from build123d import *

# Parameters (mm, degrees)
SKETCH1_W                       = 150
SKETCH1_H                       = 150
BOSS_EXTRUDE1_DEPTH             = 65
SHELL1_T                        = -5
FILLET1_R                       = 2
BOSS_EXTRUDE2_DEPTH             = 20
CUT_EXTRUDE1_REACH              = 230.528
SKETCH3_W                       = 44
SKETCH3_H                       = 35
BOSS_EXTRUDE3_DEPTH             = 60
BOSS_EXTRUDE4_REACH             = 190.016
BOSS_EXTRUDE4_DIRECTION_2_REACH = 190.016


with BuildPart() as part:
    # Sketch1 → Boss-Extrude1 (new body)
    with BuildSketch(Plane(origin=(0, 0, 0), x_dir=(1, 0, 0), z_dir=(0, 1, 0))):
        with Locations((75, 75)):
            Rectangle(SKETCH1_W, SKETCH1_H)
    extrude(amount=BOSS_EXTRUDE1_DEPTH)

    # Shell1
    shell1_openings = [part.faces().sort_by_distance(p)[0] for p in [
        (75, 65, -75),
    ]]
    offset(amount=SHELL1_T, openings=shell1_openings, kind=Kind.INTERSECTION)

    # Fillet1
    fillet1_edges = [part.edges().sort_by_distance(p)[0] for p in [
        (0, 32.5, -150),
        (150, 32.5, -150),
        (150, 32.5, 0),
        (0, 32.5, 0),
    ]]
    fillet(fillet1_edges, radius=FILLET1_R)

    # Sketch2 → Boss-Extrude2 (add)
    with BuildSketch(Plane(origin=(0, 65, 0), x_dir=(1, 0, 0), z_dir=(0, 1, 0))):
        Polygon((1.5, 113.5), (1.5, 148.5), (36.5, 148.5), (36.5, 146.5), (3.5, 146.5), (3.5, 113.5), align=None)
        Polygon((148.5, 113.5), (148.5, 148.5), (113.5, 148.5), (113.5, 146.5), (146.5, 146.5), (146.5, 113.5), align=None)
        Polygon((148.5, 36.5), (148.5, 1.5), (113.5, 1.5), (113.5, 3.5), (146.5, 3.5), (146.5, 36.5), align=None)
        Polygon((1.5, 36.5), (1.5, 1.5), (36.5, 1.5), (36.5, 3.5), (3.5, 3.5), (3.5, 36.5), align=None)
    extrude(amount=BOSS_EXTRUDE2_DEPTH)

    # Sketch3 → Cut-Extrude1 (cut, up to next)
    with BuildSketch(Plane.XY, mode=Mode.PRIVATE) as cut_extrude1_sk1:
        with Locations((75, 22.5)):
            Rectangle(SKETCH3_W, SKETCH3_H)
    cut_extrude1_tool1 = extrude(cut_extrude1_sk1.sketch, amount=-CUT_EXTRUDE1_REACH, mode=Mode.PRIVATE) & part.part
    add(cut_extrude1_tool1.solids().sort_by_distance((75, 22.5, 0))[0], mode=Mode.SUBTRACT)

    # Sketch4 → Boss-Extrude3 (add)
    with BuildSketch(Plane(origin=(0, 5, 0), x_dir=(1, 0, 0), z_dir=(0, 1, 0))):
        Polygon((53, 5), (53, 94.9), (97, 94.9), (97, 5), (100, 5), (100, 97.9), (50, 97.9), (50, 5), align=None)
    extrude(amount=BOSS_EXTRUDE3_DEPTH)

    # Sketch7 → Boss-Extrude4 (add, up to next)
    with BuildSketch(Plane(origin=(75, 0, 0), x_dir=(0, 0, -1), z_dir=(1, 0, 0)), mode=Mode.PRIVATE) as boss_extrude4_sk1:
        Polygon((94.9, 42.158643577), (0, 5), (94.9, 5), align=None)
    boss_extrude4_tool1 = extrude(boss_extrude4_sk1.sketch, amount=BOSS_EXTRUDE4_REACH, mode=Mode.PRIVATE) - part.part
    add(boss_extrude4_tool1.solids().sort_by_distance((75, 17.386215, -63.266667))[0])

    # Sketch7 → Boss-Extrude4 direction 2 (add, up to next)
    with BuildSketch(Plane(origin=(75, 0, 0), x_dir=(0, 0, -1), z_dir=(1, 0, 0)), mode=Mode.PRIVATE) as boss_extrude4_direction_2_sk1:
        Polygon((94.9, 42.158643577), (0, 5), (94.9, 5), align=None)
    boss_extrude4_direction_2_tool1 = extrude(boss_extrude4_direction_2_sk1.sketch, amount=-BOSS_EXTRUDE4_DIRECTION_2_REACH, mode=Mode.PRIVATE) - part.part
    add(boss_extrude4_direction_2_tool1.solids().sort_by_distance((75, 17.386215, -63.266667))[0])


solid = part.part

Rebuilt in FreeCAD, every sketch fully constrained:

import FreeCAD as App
import Part
import Sketcher


def edges_at(feature, points):
    """Names of the edges that pass closest to the given points."""
    edges = feature.Shape.Edges
    near = lambda p: min(range(len(edges)), key=lambda i: edges[i].distToShape(Part.Vertex(*p))[0])
    return sorted({f"Edge{near(p) + 1}" for p in points})


def faces_at(feature, points):
    """Names of the faces that lie closest to the given points."""
    faces = feature.Shape.Faces
    near = lambda p: min(range(len(faces)), key=lambda i: faces[i].distToShape(Part.Vertex(*p))[0])
    return sorted({f"Face{near(p) + 1}" for p in points})


def add_polygon(sketch, points):
    """Adds a closed chain of lines whose ends are joined by coincident constraints."""
    first, n = sketch.GeometryCount, len(points)
    for a, b in zip(points, points[1:] + points[:1]):
        sketch.addGeometry(Part.LineSegment(App.Vector(*a, 0), App.Vector(*b, 0)), False)
    for i in range(n):
        sketch.addConstraint(Sketcher.Constraint("Coincident", first + i, 2, first + (i + 1) % n, 1))

doc = App.newDocument("Part")
body = doc.addObject("PartDesign::Body", "Body")

sketch1 = body.newObject("Sketcher::SketchObject", "Sketch")
sketch1.AttachmentSupport = (doc.getObject("XZ_Plane"), [""])
sketch1.MapMode = "FlatFace"
add_polygon(sketch1, [(0, -150), (0, 0), (150, 0), (150, -150)])
sketch1.addConstraint([
    Sketcher.Constraint("Vertical", 0),
    Sketcher.Constraint("Horizontal", 1),
    Sketcher.Constraint("Vertical", 2),
    Sketcher.Constraint("Horizontal", 3),
    Sketcher.Constraint("Coincident", 0, 2, -1, 1),
    Sketcher.Constraint("Equal", 3, 0),
    Sketcher.Constraint("DistanceX", 1, 1, 1, 2, 150.0),
])
pad1 = body.newObject("PartDesign::Pad", "Pad")
pad1.Profile = sketch1
pad1.Length = 65
pad1.Reversed = True
doc.recompute()

thickness = body.newObject("PartDesign::Thickness", "Thickness")
thickness.Base = (pad1, faces_at(pad1, [(75, 65, -75)]))
thickness.Value = 5
thickness.Reversed = True
thickness.Join = "Intersection"
doc.recompute()

fillet = body.newObject("PartDesign::Fillet", "Fillet")
fillet.Base = (thickness, edges_at(thickness, [
    (0, 32.5, -150),
    (150, 32.5, -150),
    (150, 32.5, 0),
    (0, 32.5, 0),
]))
fillet.Radius = 2

sketch2 = body.newObject("Sketcher::SketchObject", "Sketch001")
sketch2.AttachmentSupport = (doc.getObject("XZ_Plane"), [""])
sketch2.MapMode = "FlatFace"
sketch2.AttachmentOffset = App.Placement(App.Vector(0, 0, -65), App.Rotation())
add_polygon(sketch2, [(1.5, -148.5), (1.5, -113.5), (3.5, -113.5), (3.5, -146.5), (36.5, -146.5), (36.5, -148.5)])
add_polygon(sketch2, [(148.5, -113.5), (148.5, -148.5), (113.5, -148.5), (113.5, -146.5), (146.5, -146.5), (146.5, -113.5)])
add_polygon(sketch2, [(148.5, -1.5), (148.5, -36.5), (146.5, -36.5), (146.5, -3.5), (113.5, -3.5), (113.5, -1.5)])
add_polygon(sketch2, [(1.5, -36.5), (1.5, -1.5), (36.5, -1.5), (36.5, -3.5), (3.5, -3.5), (3.5, -36.5)])
sketch2.addConstraint([
    Sketcher.Constraint("Vertical", 0),
    Sketcher.Constraint("Horizontal", 1),
    Sketcher.Constraint("Vertical", 2),
    Sketcher.Constraint("Horizontal", 3),
    Sketcher.Constraint("Vertical", 4),
    Sketcher.Constraint("Horizontal", 5),
    Sketcher.Constraint("Vertical", 6),
    Sketcher.Constraint("Horizontal", 7),
    Sketcher.Constraint("Vertical", 8),
    Sketcher.Constraint("Horizontal", 9),
    Sketcher.Constraint("Vertical", 10),
    Sketcher.Constraint("Horizontal", 11),
    Sketcher.Constraint("Vertical", 12),
    Sketcher.Constraint("Horizontal", 13),
    Sketcher.Constraint("Vertical", 14),
    Sketcher.Constraint("Horizontal", 15),
    Sketcher.Constraint("Vertical", 16),
    Sketcher.Constraint("Horizontal", 17),
    Sketcher.Constraint("Vertical", 18),
    Sketcher.Constraint("Horizontal", 19),
    Sketcher.Constraint("Vertical", 20),
    Sketcher.Constraint("Horizontal", 21),
    Sketcher.Constraint("Vertical", 22),
    Sketcher.Constraint("Horizontal", 23),
    Sketcher.Constraint("Horizontal", 5, 2, 6, 2),
    Sketcher.Constraint("Horizontal", 3, 2, 8, 2),
    Sketcher.Constraint("Horizontal", 1, 2, 10, 2),
    Sketcher.Constraint("Horizontal", 17, 2, 18, 2),
    Sketcher.Constraint("Horizontal", 15, 2, 20, 2),
    Sketcher.Constraint("Horizontal", 13, 2, 22, 2),
    Sketcher.Constraint("Vertical", 11, 2, 12, 2),
    Sketcher.Constraint("Vertical", 10, 2, 13, 2),
    Sketcher.Constraint("Vertical", 8, 2, 15, 2),
    Sketcher.Constraint("Vertical", 5, 2, 18, 2),
    Sketcher.Constraint("Vertical", 4, 2, 19, 2),
    Sketcher.Constraint("Vertical", 2, 2, 21, 2),
    Sketcher.Constraint("Equal", 5, 7),
    Sketcher.Constraint("Equal", 3, 9),
    Sketcher.Constraint("Equal", 19, 0),
    Sketcher.Constraint("Equal", 21, 2),
    Sketcher.Constraint("Equal", 6, 12),
    Sketcher.Constraint("Equal", 10, 14),
    Sketcher.Constraint("DistanceX", 1, 1, 1, 2, 2.0),
    Sketcher.Constraint("DistanceX", 3, 1, 3, 2, 33.0),
    Sketcher.Constraint("DistanceX", 4, 2, 6, 2, 112.0),
    Sketcher.Constraint("DistanceY", 11, 2, 12, 2, 77.0),
    Sketcher.Constraint("DistanceX", -1, 1, 0, 2, 1.5),
    Sketcher.Constraint("DistanceY", 0, 2, -1, 1, 113.5),
])
pad2 = body.newObject("PartDesign::Pad", "Pad001")
pad2.Profile = sketch2
pad2.Length = 20
pad2.Reversed = True

sketch3 = body.newObject("Sketcher::SketchObject", "Sketch002")
sketch3.AttachmentSupport = (doc.getObject("XY_Plane"), [""])
sketch3.MapMode = "FlatFace"
add_polygon(sketch3, [(53, 40), (53, 5), (97, 5), (97, 40)])
sketch3.addConstraint([
    Sketcher.Constraint("Vertical", 0),
    Sketcher.Constraint("Horizontal", 1),
    Sketcher.Constraint("Vertical", 2),
    Sketcher.Constraint("Horizontal", 3),
    Sketcher.Constraint("DistanceX", 1, 1, 1, 2, 44.0),
    Sketcher.Constraint("DistanceY", 0, 2, 0, 1, 35.0),
    Sketcher.Constraint("DistanceX", -1, 1, 0, 2, 53.0),
    Sketcher.Constraint("DistanceY", -1, 1, 0, 2, 5.0),
])
pocket1 = body.newObject("PartDesign::Pocket", "Pocket")
pocket1.Profile = sketch3
pocket1.Type = "UpToFirst"

sketch4 = body.newObject("Sketcher::SketchObject", "Sketch003")
sketch4.AttachmentSupport = (doc.getObject("XZ_Plane"), [""])
sketch4.MapMode = "FlatFace"
sketch4.AttachmentOffset = App.Placement(App.Vector(0, 0, -5), App.Rotation())
add_polygon(sketch4, [(53, -5), (53, -94.9), (97, -94.9), (97, -5), (100, -5), (100, -97.9), (50, -97.9), (50, -5)])
sketch4.addConstraint([
    Sketcher.Constraint("Vertical", 0),
    Sketcher.Constraint("Horizontal", 1),
    Sketcher.Constraint("Vertical", 2),
    Sketcher.Constraint("Horizontal", 3),
    Sketcher.Constraint("Vertical", 4),
    Sketcher.Constraint("Horizontal", 5),
    Sketcher.Constraint("Vertical", 6),
    Sketcher.Constraint("Horizontal", 7),
    Sketcher.Constraint("Horizontal", 3, 2, 6, 2),
    Sketcher.Constraint("Equal", 3, 7),
    Sketcher.Constraint("DistanceX", 1, 1, 1, 2, 44.0),
    Sketcher.Constraint("DistanceX", 3, 1, 3, 2, 3.0),
    Sketcher.Constraint("DistanceY", 0, 2, 0, 1, 89.9),
    Sketcher.Constraint("DistanceY", 4, 2, 4, 1, 92.9),
    Sketcher.Constraint("DistanceX", -1, 1, 0, 2, 53.0),
    Sketcher.Constraint("DistanceY", 2, 2, -1, 1, 5.0),
])
pad3 = body.newObject("PartDesign::Pad", "Pad002")
pad3.Profile = sketch4
pad3.Length = 60
pad3.Reversed = True

sketch5 = body.newObject("Sketcher::SketchObject", "Sketch004")
sketch5.AttachmentSupport = (doc.getObject("YZ_Plane"), [""])
sketch5.MapMode = "FlatFace"
sketch5.AttachmentOffset = App.Placement(App.Vector(0, 0, 75), App.Rotation())
add_polygon(sketch5, [(42, -95), (5, 0), (5, -95)])
sketch5.addConstraint([
    Sketcher.Constraint("Vertical", 1),
    Sketcher.Constraint("Horizontal", 2),
    Sketcher.Constraint("PointOnObject", 0, 2, -1),
    Sketcher.Constraint("DistanceY", 1, 2, 1, 1, 94.9),
    Sketcher.Constraint("DistanceX", -1, 1, 0, 2, 5.0),
    Sketcher.Constraint("DistanceX", 2, 1, 2, 2, 37.158644),
])
pad4 = body.newObject("PartDesign::Pad", "Pad003")
pad4.Profile = sketch5
pad4.Type = "UpToFirst"

sketch6 = body.newObject("Sketcher::SketchObject", "Sketch005")
sketch6.AttachmentSupport = (doc.getObject("YZ_Plane"), [""])
sketch6.MapMode = "FlatFace"
sketch6.AttachmentOffset = App.Placement(App.Vector(0, 0, 75), App.Rotation())
add_polygon(sketch6, [(42, -95), (5, 0), (5, -95)])
sketch6.addConstraint([
    Sketcher.Constraint("Vertical", 1),
    Sketcher.Constraint("Horizontal", 2),
    Sketcher.Constraint("PointOnObject", 0, 2, -1),
    Sketcher.Constraint("DistanceY", 1, 2, 1, 1, 94.9),
    Sketcher.Constraint("DistanceX", -1, 1, 0, 2, 5.0),
    Sketcher.Constraint("DistanceX", 2, 1, 2, 2, 37.158644),
])
pad5 = body.newObject("PartDesign::Pad", "Pad004")
pad5.Profile = sketch6
pad5.Type = "UpToFirst"
pad5.Reversed = True

doc.recompute()
